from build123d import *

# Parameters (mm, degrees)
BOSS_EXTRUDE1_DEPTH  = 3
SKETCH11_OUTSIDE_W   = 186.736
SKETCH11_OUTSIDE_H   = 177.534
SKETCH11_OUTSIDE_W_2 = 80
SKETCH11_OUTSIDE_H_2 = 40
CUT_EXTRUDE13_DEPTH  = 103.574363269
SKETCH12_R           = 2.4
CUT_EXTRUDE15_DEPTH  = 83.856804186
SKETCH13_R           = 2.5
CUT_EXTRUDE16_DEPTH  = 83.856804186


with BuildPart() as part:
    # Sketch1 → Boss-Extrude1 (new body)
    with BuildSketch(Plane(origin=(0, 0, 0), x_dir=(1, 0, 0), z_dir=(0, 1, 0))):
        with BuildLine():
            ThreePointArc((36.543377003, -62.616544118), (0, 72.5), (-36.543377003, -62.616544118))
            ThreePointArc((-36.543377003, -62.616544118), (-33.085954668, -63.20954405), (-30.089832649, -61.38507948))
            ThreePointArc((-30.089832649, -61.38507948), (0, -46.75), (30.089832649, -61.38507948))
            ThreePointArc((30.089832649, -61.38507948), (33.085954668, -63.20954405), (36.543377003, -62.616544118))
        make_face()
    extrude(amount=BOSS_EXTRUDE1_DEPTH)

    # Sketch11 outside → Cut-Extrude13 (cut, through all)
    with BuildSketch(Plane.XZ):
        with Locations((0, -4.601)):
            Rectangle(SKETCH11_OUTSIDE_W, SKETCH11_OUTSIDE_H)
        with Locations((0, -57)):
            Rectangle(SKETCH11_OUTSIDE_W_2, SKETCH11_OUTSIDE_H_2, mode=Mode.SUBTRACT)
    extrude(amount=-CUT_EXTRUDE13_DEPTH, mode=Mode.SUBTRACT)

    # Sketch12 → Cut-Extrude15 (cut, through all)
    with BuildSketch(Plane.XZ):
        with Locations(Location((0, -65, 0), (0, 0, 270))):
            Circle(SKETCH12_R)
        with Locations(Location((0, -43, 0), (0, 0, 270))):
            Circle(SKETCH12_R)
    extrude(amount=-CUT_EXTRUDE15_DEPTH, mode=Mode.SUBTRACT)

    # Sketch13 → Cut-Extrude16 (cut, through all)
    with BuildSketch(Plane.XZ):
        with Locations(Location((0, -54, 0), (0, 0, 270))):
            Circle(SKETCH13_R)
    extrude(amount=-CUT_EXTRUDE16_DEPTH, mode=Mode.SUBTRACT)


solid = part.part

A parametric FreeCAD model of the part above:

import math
import FreeCAD as App
import Part
import Sketcher
from FreeCAD import Vector
Q = App.Units.Quantity


def add_polygon(sketch, points):
    """Adds a closed chain of lines whose ends are joined by coincident constraints."""
    first, n = sketch.GeometryCount, len(points)
    for a, b in zip(points, points[1:] + points[:1]):
        sketch.addGeometry(Part.LineSegment(App.Vector(*a, 0), App.Vector(*b, 0)), False)
    for i in range(n):
        sketch.addConstraint(Sketcher.Constraint("Coincident", first + i, 2, first + (i + 1) % n, 1))

doc = App.newDocument("Part")
body = doc.addObject("PartDesign::Body", "Body")

# Sketch on XZ plane
sketch1 = doc.addObject("Sketcher::SketchObject", "Sketch")
body.addObject(sketch1)
sketch1.AttachmentSupport = (doc.XZ_Plane, [""])
sketch1.MapMode = "FlatFace"
sketch1.addGeometry([
    Part.ArcOfCircle(Part.Circle(Vector(0, 0, 0), Vector(0, 0, 1), 72), math.radians(120), math.radians(420)),
    Part.ArcOfCircle(Part.Circle(Vector(-34, 58, 0), Vector(0, 0, 1), 5), math.radians(38), math.radians(120)),
    Part.ArcOfCircle(Part.Circle(Vector(0, 85, 0), Vector(0, 0, 1), 38), math.radians(-142), math.radians(-38)),
    Part.ArcOfCircle(Part.Circle(Vector(34, 58, 0), Vector(0, 0, 1), 5), math.radians(60), math.radians(142)),
], False)
sketch1.addConstraint([
    Sketcher.Constraint("Tangent", 0, 1, 1, 2),
    Sketcher.Constraint("Tangent", 1, 1, 2, 1),
    Sketcher.Constraint("Tangent", 2, 2, 3, 2),
    Sketcher.Constraint("Tangent", 3, 1, 0, 2),
    Sketcher.Constraint("Coincident", 0, 3, -1, 1),
    Sketcher.Constraint("Equal", 1, 3),
    Sketcher.Constraint("PointOnObject", 2, 3, -2),
    Sketcher.Constraint("Radius", 1, Q("5 mm")),
    Sketcher.Constraint("Radius", 0, Q("72.5 mm")),
    Sketcher.Constraint("Radius", 2, Q("38.25 mm")),
    Sketcher.Constraint("DistanceY", -1, 1, 2, 3, Q("85 mm")),
])
pad1 = doc.addObject("PartDesign::Pad", "Pad")
body.addObject(pad1)
pad1.Profile = sketch1
pad1.Length = 3
pad1.Reversed = True

# Sketch on XZ plane
sketch2 = doc.addObject("Sketcher::SketchObject", "Sketch001")
body.addObject(sketch2)
sketch2.AttachmentSupport = (doc.XZ_Plane, [""])
sketch2.MapMode = "FlatFace"
add_polygon(sketch2, [(-93, 84), (-93, -93), (93, -93), (93, 84)])  # lines 0-3
add_polygon(sketch2, [(40, -77), (-40, -77), (-40, -37), (40, -37)])  # lines 4-7
sketch2.addConstraint([
    Sketcher.Constraint("Vertical", 0),
    Sketcher.Constraint("Horizontal", 1),
    Sketcher.Constraint("Vertical", 2),
    Sketcher.Constraint("Horizontal", 3),
    Sketcher.Constraint("Horizontal", 4),
    Sketcher.Constraint("Vertical", 5),
    Sketcher.Constraint("Horizontal", 6),
    Sketcher.Constraint("Vertical", 7),
    Sketcher.Constraint("DistanceX", 4, 2, 4, 1, Q("80 mm")),
    Sketcher.Constraint("DistanceY", 5, 1, 5, 2, Q("40 mm")),
    Sketcher.Constraint("DistanceX", 4, 2, -1, 1, Q("40 mm")),
    Sketcher.Constraint("DistanceY", 4, 2, -1, 1, Q("77 mm")),
    Sketcher.Constraint("DistanceX", 1, 1, 1, 2, Q("186.736 mm")),
    Sketcher.Constraint("DistanceY", 0, 2, 0, 1, Q("177.534 mm")),
    Sketcher.Constraint("DistanceX", 0, 2, -1, 1, Q("93.368 mm")),
    Sketcher.Constraint("DistanceY", 0, 2, -1, 1, Q("93.368 mm")),
])
pocket1 = doc.addObject("PartDesign::Pocket", "Pocket")
body.addObject(pocket1)
pocket1.Profile = sketch2
pocket1.Type = "ThroughAll"

# Sketch on XZ plane
sketch3 = doc.addObject("Sketcher::SketchObject", "Sketch002")
body.addObject(sketch3)
sketch3.AttachmentSupport = (doc.XZ_Plane, [""])
sketch3.MapMode = "FlatFace"
sketch3.addGeometry([
    Part.Circle(Vector(0, -65, 0), Vector(0, 0, 1), 2.4),
    Part.Circle(Vector(0, -43, 0), Vector(0, 0, 1), 2.4),
], False)
sketch3.addConstraint([
    Sketcher.Constraint("Equal", 0, 1),
    Sketcher.Constraint("PointOnObject", 0, 3, -2),
    Sketcher.Constraint("PointOnObject", 1, 3, -2),
    Sketcher.Constraint("Diameter", 0, Q("4.8 mm")),
    Sketcher.Constraint("DistanceY", 0, 3, -1, 1, Q("65 mm")),
    Sketcher.Constraint("DistanceY", 1, 3, -1, 1, Q("43 mm")),
])
pocket2 = doc.addObject("PartDesign::Pocket", "Pocket001")
body.addObject(pocket2)
pocket2.Profile = sketch3
pocket2.Type = "ThroughAll"

# Sketch on XZ plane
sketch4 = doc.addObject("Sketcher::SketchObject", "Sketch003")
body.addObject(sketch4)
sketch4.AttachmentSupport = (doc.XZ_Plane, [""])
sketch4.MapMode = "FlatFace"
sketch4.addGeometry(Part.Circle(Vector(0, -54, 0), Vector(0, 0, 1), 2.5), False)
sketch4.addConstraint([
    Sketcher.Constraint("PointOnObject", 0, 3, -2),
    Sketcher.Constraint("Diameter", 0, Q("5 mm")),
    Sketcher.Constraint("DistanceY", 0, 3, -1, 1, Q("54 mm")),
])
pocket3 = doc.addObject("PartDesign::Pocket", "Pocket002")
body.addObject(pocket3)
pocket3.Profile = sketch4
pocket3.Type = "ThroughAll"

doc.recompute()
